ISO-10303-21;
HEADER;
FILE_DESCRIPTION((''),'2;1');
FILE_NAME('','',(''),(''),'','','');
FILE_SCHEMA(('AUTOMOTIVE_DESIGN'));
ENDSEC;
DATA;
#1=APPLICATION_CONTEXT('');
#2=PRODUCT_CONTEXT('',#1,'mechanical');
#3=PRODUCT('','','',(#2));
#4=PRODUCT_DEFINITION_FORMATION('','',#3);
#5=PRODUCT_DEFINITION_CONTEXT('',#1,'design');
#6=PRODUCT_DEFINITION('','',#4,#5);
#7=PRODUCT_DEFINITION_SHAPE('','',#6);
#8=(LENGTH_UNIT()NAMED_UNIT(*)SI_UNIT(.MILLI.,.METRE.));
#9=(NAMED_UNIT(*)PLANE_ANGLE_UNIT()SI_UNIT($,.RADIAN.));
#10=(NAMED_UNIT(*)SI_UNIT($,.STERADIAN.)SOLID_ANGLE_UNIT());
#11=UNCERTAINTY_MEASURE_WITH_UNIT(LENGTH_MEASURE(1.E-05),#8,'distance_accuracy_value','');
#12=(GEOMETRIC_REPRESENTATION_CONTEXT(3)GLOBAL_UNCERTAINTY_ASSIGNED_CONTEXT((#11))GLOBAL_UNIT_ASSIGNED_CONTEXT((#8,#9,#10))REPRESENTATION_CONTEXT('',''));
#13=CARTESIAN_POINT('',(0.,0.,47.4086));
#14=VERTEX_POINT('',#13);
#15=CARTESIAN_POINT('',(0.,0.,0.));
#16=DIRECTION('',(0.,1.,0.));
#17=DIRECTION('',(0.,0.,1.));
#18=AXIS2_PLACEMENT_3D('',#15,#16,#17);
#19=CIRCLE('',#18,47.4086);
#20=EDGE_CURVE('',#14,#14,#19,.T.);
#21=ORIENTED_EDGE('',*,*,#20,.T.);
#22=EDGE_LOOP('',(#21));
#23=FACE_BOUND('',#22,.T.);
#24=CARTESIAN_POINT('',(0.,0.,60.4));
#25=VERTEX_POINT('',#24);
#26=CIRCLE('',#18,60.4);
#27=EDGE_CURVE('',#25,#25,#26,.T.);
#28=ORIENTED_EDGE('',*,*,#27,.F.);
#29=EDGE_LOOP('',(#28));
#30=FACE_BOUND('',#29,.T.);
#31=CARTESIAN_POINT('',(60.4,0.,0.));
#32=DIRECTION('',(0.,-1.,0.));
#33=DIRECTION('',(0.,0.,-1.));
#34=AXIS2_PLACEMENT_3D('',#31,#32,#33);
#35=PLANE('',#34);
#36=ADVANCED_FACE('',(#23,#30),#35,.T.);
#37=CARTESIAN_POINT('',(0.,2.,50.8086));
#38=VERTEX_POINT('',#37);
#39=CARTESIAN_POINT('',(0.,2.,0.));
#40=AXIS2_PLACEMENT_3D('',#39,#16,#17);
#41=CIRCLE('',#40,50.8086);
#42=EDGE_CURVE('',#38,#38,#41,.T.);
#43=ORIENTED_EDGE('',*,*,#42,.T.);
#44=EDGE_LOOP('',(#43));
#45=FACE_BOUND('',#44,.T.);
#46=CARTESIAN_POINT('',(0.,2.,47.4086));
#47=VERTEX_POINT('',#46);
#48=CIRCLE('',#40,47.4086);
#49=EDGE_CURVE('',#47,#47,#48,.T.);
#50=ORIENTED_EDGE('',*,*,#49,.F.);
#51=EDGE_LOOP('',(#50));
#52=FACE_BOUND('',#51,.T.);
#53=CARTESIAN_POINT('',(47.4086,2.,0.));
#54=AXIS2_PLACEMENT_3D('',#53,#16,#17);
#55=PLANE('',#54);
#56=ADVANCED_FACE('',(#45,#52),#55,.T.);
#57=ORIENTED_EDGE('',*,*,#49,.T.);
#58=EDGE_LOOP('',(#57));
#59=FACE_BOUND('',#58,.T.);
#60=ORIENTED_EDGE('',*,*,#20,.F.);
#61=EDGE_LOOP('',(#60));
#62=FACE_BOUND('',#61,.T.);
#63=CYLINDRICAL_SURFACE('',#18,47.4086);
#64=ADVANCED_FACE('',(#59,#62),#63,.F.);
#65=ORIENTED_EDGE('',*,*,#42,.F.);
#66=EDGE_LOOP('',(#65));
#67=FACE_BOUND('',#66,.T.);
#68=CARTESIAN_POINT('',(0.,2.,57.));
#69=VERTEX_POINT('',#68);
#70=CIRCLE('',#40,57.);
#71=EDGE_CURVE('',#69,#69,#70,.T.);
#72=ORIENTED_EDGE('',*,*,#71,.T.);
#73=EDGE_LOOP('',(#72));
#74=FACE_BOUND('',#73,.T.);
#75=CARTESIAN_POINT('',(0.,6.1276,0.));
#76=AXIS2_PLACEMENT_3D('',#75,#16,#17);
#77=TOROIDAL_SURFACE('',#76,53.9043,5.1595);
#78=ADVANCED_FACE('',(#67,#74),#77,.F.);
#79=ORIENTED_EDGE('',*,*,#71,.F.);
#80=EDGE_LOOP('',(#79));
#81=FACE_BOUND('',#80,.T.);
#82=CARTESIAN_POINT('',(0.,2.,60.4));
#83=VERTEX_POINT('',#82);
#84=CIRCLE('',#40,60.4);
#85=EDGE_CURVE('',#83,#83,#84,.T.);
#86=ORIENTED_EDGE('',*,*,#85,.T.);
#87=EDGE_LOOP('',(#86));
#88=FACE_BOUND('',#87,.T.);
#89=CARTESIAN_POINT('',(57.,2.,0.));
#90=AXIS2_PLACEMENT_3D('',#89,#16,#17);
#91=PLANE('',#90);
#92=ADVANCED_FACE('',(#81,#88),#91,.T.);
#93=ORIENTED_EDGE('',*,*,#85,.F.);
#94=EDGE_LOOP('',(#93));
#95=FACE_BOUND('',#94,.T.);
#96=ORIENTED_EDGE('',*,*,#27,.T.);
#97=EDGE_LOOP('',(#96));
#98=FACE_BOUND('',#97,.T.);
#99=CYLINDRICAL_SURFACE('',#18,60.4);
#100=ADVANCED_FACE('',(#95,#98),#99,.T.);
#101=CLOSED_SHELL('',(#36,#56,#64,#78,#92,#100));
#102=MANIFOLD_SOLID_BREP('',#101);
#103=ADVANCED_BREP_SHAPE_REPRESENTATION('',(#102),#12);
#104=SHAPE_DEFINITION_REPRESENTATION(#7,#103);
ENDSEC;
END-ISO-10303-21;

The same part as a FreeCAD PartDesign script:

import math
import FreeCAD as App
import Part
import Sketcher

doc = App.newDocument("Part")
params = doc.addObject("Spreadsheet::Sheet", "Params")
for row, (alias, value) in enumerate([
    ("sketch1_height", "2 mm"),
    ("sketch1_width", "3.4 mm"),
    ("revolution_angle", "360 deg"),
], start=1):
    params.set(f"A{row}", alias)
    params.set(f"B{row}", "=" + value)
    params.setAlias(f"B{row}", alias)

body = doc.addObject("PartDesign::Body", "Body")

sketch1 = body.newObject("Sketcher::SketchObject", "Sketch")
sketch1.AttachmentSupport = (doc.getObject("XY_Plane"), [""])
sketch1.MapMode = "FlatFace"
sketch1.addGeometry([
    Part.LineSegment(App.Vector(60.4, 0, 0), App.Vector(47.4, 0, 0)),
    Part.LineSegment(App.Vector(47.4, 0, 0), App.Vector(47.4, 2, 0)),
    Part.LineSegment(App.Vector(47.4, 2, 0), App.Vector(50.8, 2, 0)),
    Part.ArcOfCircle(Part.Circle(App.Vector(53.9, 6.1, 0), App.Vector(0, 0, 1), 5.2), math.radians(-127), math.radians(-53)),
    Part.LineSegment(App.Vector(57, 2, 0), App.Vector(60.4, 2, 0)),
    Part.LineSegment(App.Vector(60.4, 2, 0), App.Vector(60.4, 0, 0)),
], False)
sketch1.addConstraint([
    Sketcher.Constraint("Coincident", 0, 2, 1, 1),
    Sketcher.Constraint("Coincident", 1, 2, 2, 1),
    Sketcher.Constraint("Coincident", 2, 2, 3, 1),
    Sketcher.Constraint("Coincident", 3, 2, 4, 1),
    Sketcher.Constraint("Coincident", 4, 2, 5, 1),
    Sketcher.Constraint("Coincident", 5, 2, 0, 1),
    Sketcher.Constraint("Horizontal", 0),
    Sketcher.Constraint("Vertical", 1),
    Sketcher.Constraint("Horizontal", 2),
    Sketcher.Constraint("Horizontal", 4),
    Sketcher.Constraint("Vertical", 5),
    Sketcher.Constraint("PointOnObject", 0, 2, -1),
    Sketcher.Constraint("Horizontal", 2, 2, 3, 2),
    Sketcher.Constraint("Equal", 2, 4),
    Sketcher.Constraint("DistanceY", 1, 1, 1, 2, 2.0),
    Sketcher.Constraint("DistanceX", 2, 1, 2, 2, 3.4),
    Sketcher.Constraint("DistanceX", -1, 1, 3, 2, 57.0),
    Sketcher.Constraint("Radius", 3, 5.1595),
    Sketcher.Constraint("DistanceX", 0, 2, 0, 1, 12.9914),
])
sketch1.setExpression("Constraints[14]", "Params.sketch1_height")
sketch1.setExpression("Constraints[15]", "Params.sketch1_width")
revolution = body.newObject("PartDesign::Revolution", "Revolution")
revolution.Profile = sketch1
revolution.ReferenceAxis = (sketch1, ["V_Axis"])
revolution.setExpression("Angle", "Params.revolution_angle")

doc.recompute()
